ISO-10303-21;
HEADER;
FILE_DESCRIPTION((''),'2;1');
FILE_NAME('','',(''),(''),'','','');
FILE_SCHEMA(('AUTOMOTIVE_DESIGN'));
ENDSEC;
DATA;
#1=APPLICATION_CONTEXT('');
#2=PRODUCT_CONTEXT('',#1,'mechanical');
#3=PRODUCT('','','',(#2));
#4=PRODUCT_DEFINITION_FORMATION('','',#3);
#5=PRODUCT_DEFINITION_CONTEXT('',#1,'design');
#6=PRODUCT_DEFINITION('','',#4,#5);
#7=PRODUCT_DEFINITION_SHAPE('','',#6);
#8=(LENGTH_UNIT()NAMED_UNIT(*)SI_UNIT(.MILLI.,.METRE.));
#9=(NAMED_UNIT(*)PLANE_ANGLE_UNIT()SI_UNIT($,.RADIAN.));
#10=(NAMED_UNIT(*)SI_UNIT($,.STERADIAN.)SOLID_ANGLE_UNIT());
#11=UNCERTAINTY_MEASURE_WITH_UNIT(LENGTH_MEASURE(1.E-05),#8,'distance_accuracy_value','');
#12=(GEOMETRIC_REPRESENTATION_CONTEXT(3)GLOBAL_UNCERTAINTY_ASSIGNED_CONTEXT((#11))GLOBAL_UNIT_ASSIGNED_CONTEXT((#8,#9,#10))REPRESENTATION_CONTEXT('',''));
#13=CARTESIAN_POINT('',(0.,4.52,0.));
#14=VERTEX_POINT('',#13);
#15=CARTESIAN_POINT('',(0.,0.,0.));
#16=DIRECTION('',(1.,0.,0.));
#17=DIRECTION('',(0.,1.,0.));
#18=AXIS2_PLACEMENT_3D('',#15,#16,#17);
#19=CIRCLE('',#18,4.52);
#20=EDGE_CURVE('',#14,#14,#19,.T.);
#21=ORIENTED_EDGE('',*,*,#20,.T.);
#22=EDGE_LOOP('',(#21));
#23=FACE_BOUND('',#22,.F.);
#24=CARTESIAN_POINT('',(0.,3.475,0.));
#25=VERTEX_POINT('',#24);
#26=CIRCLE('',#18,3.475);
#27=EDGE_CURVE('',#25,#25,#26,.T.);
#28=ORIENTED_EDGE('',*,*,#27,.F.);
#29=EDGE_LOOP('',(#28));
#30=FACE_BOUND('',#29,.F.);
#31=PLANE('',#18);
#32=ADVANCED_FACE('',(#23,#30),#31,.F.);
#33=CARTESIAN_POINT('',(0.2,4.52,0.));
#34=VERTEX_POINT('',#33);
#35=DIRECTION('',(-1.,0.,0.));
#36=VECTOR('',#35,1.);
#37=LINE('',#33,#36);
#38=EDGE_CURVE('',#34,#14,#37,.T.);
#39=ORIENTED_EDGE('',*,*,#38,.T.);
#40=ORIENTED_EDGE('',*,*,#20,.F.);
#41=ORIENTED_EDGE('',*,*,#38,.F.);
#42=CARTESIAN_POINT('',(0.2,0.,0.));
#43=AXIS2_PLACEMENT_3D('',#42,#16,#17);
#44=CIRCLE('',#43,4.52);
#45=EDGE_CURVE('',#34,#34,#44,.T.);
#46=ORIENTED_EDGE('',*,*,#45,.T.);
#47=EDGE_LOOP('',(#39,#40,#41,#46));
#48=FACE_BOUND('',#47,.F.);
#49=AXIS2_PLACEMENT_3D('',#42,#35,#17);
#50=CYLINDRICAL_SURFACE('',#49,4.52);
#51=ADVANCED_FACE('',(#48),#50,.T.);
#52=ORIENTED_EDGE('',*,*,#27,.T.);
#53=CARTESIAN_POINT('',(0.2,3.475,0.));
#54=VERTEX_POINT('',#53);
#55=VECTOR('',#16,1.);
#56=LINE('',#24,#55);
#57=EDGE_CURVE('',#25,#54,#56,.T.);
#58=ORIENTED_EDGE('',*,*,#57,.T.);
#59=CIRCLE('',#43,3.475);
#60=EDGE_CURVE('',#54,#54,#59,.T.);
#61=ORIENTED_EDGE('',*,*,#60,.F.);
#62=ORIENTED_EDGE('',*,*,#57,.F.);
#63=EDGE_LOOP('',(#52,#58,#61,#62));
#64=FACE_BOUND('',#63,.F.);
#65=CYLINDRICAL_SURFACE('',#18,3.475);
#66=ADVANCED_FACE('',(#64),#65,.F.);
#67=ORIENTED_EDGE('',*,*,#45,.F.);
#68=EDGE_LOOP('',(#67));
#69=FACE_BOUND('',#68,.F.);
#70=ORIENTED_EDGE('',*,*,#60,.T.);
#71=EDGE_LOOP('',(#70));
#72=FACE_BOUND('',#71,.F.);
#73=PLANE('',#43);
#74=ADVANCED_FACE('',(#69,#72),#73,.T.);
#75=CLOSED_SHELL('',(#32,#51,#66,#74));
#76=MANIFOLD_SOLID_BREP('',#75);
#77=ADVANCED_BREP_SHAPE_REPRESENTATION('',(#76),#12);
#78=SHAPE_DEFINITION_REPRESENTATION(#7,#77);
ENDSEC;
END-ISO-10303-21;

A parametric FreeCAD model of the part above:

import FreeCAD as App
import Part
import Sketcher
from FreeCAD import Vector
Q = App.Units.Quantity

doc = App.newDocument("Part")
body = doc.addObject("PartDesign::Body", "Body")

# Sketch on XY plane
sketch1 = body.newObject("Sketcher::SketchObject", "Sketch")
sketch1.AttachmentSupport = (doc.getObject("XY_Plane"), [""])
sketch1.MapMode = "FlatFace"
sketch1.addGeometry([
    Part.LineSegment(Vector(0.2, 4.52, 0), Vector(0, 4.52, 0)),
    Part.LineSegment(Vector(0, 4.52, 0), Vector(0, 3.475, 0)),
    Part.LineSegment(Vector(0, 3.475, 0), Vector(0.2, 3.475, 0)),
    Part.LineSegment(Vector(0.2, 3.475, 0), Vector(0.2, 4.52, 0)),
], False)
sketch1.addConstraint([
    Sketcher.Constraint("Coincident", 0, 2, 1, 1),
    Sketcher.Constraint("Coincident", 1, 2, 2, 1),
    Sketcher.Constraint("Coincident", 2, 2, 3, 1),
    Sketcher.Constraint("Coincident", 3, 2, 0, 1),
    Sketcher.Constraint("Horizontal", 0),
    Sketcher.Constraint("Vertical", 1),
    Sketcher.Constraint("Horizontal", 2),
    Sketcher.Constraint("Vertical", 3),
    Sketcher.Constraint("PointOnObject", 0, 2, -2),
    Sketcher.Constraint("DistanceX", 0, 2, 0, 1, Q("0.2 mm")),
    Sketcher.Constraint("DistanceY", 1, 2, 1, 1, Q("1.045 mm")),
    Sketcher.Constraint("DistanceY", -1, 1, 0, 2, Q("4.52 mm")),
])
revolution = body.newObject("PartDesign::Revolution", "Revolution")
revolution.Profile = sketch1
revolution.ReferenceAxis = (sketch1, ["H_Axis"])
revolution.Angle = 360

doc.recompute()
